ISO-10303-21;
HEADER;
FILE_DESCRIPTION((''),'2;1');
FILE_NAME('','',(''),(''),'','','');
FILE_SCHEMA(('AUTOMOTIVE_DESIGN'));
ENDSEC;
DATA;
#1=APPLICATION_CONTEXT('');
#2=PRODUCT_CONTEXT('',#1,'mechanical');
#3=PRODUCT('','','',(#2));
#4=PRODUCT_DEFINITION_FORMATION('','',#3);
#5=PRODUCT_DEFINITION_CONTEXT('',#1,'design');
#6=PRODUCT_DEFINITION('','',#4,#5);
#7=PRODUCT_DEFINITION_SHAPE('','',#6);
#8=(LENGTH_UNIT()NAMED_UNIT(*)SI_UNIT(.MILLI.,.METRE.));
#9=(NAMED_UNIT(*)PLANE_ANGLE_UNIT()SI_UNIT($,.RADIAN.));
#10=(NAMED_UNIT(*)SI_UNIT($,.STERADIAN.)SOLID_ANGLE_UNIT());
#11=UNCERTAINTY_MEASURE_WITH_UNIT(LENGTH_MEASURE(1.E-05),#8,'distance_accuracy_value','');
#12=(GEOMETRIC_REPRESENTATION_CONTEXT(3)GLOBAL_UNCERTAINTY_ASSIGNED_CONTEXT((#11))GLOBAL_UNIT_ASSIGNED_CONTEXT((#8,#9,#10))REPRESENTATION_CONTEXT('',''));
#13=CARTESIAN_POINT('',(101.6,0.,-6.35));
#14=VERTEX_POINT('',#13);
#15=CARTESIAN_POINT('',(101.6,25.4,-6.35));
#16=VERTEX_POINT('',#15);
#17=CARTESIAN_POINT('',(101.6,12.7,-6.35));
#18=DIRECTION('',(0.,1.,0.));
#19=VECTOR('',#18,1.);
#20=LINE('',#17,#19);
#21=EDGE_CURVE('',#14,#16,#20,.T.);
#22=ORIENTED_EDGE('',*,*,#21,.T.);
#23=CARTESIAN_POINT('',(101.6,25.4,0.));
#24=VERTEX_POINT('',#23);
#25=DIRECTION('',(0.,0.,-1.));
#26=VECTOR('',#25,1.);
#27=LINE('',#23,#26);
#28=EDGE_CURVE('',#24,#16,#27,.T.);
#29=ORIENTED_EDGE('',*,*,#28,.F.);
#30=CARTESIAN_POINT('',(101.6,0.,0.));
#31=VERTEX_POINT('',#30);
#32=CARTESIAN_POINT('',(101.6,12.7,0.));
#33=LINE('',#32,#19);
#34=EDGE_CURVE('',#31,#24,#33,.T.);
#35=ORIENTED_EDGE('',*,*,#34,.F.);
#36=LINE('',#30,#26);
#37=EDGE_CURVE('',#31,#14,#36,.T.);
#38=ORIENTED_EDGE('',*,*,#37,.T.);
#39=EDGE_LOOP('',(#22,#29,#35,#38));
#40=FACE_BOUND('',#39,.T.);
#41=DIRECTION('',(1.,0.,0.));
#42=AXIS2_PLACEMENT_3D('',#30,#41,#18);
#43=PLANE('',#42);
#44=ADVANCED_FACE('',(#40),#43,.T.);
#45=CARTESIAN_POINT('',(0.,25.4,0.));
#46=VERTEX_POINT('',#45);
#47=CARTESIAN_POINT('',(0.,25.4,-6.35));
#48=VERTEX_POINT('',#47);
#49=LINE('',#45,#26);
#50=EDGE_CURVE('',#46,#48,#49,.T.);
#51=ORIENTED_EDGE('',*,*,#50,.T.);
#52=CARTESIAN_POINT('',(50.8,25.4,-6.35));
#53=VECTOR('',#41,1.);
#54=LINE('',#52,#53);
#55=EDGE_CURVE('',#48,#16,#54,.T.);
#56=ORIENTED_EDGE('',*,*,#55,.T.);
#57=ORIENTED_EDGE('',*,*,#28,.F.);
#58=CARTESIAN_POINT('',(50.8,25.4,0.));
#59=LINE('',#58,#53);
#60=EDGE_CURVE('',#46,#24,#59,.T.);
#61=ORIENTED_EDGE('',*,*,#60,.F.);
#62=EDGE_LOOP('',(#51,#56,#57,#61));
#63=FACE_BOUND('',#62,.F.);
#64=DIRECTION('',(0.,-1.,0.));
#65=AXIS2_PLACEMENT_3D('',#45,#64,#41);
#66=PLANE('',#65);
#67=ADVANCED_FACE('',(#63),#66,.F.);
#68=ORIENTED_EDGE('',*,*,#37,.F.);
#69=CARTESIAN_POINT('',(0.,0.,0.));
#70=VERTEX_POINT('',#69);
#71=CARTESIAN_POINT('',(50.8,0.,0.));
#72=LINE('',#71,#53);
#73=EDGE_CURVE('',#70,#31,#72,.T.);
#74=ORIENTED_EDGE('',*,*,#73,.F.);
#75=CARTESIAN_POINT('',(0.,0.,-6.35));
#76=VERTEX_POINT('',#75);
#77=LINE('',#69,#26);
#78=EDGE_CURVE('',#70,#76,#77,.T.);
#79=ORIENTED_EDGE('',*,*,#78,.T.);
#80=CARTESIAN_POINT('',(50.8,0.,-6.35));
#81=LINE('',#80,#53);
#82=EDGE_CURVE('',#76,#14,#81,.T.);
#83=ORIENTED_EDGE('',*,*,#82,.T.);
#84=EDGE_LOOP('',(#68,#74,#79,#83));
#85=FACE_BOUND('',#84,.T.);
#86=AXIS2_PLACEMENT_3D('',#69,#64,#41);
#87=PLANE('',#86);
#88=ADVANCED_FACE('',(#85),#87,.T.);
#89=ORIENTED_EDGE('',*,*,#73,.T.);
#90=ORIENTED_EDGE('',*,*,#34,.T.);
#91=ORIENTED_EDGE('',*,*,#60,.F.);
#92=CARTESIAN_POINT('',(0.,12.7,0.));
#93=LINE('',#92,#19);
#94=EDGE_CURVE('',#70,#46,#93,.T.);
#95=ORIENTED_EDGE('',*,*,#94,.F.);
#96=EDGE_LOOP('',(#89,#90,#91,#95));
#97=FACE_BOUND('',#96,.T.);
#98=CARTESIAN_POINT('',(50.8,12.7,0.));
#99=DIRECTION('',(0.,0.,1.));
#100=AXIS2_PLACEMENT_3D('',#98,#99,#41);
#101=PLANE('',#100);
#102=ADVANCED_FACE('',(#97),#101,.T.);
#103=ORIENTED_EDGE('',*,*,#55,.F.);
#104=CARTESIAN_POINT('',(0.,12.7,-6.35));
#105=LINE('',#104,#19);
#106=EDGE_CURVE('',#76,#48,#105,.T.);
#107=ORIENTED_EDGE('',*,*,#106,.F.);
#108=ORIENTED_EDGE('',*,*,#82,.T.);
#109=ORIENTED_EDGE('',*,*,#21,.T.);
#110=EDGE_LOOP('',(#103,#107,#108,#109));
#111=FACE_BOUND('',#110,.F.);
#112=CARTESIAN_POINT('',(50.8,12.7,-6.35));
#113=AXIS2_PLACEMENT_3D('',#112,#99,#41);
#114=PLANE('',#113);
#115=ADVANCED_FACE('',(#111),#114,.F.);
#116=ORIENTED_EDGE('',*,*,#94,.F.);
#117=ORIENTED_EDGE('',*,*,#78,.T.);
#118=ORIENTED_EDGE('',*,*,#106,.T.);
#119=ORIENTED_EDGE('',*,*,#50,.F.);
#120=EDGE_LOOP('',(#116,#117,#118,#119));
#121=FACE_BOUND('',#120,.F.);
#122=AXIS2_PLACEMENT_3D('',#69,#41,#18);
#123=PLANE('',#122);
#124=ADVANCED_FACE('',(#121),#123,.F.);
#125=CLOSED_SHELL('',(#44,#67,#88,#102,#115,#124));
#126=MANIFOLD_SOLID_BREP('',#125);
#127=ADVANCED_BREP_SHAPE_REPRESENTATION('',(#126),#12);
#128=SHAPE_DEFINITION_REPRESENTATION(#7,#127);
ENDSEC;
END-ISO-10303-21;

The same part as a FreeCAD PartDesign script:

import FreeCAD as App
import Part
import Sketcher
from FreeCAD import Vector
Q = App.Units.Quantity


def add_polygon(sketch, points):
    """Adds a closed chain of lines whose ends are joined by coincident constraints."""
    first, n = sketch.GeometryCount, len(points)
    for a, b in zip(points, points[1:] + points[:1]):
        sketch.addGeometry(Part.LineSegment(App.Vector(*a, 0), App.Vector(*b, 0)), False)
    for i in range(n):
        sketch.addConstraint(Sketcher.Constraint("Coincident", first + i, 2, first + (i + 1) % n, 1))

doc = App.newDocument("Part")
body = doc.addObject("PartDesign::Body", "Body")

# Sketch on XY plane
sketch1 = body.newObject("Sketcher::SketchObject", "Sketch")
sketch1.AttachmentSupport = (doc.getObject("XY_Plane"), [""])
sketch1.MapMode = "FlatFace"
add_polygon(sketch1, [(0, 25), (0, 0), (102, 0), (102, 25)])  # lines 0-3
sketch1.addConstraint([
    Sketcher.Constraint("Vertical", 0),
    Sketcher.Constraint("Horizontal", 1),
    Sketcher.Constraint("Vertical", 2),
    Sketcher.Constraint("Horizontal", 3),
    Sketcher.Constraint("Coincident", 0, 2, -1, 1),
    Sketcher.Constraint("DistanceX", 1, 1, 1, 2, Q("4 in")),
    Sketcher.Constraint("DistanceY", 0, 2, 0, 1, Q("1 in")),
])
pad1 = body.newObject("PartDesign::Pad", "Pad")
pad1.Profile = sketch1
pad1.Length = Q("0.25 in")
pad1.Reversed = True

doc.recompute()
